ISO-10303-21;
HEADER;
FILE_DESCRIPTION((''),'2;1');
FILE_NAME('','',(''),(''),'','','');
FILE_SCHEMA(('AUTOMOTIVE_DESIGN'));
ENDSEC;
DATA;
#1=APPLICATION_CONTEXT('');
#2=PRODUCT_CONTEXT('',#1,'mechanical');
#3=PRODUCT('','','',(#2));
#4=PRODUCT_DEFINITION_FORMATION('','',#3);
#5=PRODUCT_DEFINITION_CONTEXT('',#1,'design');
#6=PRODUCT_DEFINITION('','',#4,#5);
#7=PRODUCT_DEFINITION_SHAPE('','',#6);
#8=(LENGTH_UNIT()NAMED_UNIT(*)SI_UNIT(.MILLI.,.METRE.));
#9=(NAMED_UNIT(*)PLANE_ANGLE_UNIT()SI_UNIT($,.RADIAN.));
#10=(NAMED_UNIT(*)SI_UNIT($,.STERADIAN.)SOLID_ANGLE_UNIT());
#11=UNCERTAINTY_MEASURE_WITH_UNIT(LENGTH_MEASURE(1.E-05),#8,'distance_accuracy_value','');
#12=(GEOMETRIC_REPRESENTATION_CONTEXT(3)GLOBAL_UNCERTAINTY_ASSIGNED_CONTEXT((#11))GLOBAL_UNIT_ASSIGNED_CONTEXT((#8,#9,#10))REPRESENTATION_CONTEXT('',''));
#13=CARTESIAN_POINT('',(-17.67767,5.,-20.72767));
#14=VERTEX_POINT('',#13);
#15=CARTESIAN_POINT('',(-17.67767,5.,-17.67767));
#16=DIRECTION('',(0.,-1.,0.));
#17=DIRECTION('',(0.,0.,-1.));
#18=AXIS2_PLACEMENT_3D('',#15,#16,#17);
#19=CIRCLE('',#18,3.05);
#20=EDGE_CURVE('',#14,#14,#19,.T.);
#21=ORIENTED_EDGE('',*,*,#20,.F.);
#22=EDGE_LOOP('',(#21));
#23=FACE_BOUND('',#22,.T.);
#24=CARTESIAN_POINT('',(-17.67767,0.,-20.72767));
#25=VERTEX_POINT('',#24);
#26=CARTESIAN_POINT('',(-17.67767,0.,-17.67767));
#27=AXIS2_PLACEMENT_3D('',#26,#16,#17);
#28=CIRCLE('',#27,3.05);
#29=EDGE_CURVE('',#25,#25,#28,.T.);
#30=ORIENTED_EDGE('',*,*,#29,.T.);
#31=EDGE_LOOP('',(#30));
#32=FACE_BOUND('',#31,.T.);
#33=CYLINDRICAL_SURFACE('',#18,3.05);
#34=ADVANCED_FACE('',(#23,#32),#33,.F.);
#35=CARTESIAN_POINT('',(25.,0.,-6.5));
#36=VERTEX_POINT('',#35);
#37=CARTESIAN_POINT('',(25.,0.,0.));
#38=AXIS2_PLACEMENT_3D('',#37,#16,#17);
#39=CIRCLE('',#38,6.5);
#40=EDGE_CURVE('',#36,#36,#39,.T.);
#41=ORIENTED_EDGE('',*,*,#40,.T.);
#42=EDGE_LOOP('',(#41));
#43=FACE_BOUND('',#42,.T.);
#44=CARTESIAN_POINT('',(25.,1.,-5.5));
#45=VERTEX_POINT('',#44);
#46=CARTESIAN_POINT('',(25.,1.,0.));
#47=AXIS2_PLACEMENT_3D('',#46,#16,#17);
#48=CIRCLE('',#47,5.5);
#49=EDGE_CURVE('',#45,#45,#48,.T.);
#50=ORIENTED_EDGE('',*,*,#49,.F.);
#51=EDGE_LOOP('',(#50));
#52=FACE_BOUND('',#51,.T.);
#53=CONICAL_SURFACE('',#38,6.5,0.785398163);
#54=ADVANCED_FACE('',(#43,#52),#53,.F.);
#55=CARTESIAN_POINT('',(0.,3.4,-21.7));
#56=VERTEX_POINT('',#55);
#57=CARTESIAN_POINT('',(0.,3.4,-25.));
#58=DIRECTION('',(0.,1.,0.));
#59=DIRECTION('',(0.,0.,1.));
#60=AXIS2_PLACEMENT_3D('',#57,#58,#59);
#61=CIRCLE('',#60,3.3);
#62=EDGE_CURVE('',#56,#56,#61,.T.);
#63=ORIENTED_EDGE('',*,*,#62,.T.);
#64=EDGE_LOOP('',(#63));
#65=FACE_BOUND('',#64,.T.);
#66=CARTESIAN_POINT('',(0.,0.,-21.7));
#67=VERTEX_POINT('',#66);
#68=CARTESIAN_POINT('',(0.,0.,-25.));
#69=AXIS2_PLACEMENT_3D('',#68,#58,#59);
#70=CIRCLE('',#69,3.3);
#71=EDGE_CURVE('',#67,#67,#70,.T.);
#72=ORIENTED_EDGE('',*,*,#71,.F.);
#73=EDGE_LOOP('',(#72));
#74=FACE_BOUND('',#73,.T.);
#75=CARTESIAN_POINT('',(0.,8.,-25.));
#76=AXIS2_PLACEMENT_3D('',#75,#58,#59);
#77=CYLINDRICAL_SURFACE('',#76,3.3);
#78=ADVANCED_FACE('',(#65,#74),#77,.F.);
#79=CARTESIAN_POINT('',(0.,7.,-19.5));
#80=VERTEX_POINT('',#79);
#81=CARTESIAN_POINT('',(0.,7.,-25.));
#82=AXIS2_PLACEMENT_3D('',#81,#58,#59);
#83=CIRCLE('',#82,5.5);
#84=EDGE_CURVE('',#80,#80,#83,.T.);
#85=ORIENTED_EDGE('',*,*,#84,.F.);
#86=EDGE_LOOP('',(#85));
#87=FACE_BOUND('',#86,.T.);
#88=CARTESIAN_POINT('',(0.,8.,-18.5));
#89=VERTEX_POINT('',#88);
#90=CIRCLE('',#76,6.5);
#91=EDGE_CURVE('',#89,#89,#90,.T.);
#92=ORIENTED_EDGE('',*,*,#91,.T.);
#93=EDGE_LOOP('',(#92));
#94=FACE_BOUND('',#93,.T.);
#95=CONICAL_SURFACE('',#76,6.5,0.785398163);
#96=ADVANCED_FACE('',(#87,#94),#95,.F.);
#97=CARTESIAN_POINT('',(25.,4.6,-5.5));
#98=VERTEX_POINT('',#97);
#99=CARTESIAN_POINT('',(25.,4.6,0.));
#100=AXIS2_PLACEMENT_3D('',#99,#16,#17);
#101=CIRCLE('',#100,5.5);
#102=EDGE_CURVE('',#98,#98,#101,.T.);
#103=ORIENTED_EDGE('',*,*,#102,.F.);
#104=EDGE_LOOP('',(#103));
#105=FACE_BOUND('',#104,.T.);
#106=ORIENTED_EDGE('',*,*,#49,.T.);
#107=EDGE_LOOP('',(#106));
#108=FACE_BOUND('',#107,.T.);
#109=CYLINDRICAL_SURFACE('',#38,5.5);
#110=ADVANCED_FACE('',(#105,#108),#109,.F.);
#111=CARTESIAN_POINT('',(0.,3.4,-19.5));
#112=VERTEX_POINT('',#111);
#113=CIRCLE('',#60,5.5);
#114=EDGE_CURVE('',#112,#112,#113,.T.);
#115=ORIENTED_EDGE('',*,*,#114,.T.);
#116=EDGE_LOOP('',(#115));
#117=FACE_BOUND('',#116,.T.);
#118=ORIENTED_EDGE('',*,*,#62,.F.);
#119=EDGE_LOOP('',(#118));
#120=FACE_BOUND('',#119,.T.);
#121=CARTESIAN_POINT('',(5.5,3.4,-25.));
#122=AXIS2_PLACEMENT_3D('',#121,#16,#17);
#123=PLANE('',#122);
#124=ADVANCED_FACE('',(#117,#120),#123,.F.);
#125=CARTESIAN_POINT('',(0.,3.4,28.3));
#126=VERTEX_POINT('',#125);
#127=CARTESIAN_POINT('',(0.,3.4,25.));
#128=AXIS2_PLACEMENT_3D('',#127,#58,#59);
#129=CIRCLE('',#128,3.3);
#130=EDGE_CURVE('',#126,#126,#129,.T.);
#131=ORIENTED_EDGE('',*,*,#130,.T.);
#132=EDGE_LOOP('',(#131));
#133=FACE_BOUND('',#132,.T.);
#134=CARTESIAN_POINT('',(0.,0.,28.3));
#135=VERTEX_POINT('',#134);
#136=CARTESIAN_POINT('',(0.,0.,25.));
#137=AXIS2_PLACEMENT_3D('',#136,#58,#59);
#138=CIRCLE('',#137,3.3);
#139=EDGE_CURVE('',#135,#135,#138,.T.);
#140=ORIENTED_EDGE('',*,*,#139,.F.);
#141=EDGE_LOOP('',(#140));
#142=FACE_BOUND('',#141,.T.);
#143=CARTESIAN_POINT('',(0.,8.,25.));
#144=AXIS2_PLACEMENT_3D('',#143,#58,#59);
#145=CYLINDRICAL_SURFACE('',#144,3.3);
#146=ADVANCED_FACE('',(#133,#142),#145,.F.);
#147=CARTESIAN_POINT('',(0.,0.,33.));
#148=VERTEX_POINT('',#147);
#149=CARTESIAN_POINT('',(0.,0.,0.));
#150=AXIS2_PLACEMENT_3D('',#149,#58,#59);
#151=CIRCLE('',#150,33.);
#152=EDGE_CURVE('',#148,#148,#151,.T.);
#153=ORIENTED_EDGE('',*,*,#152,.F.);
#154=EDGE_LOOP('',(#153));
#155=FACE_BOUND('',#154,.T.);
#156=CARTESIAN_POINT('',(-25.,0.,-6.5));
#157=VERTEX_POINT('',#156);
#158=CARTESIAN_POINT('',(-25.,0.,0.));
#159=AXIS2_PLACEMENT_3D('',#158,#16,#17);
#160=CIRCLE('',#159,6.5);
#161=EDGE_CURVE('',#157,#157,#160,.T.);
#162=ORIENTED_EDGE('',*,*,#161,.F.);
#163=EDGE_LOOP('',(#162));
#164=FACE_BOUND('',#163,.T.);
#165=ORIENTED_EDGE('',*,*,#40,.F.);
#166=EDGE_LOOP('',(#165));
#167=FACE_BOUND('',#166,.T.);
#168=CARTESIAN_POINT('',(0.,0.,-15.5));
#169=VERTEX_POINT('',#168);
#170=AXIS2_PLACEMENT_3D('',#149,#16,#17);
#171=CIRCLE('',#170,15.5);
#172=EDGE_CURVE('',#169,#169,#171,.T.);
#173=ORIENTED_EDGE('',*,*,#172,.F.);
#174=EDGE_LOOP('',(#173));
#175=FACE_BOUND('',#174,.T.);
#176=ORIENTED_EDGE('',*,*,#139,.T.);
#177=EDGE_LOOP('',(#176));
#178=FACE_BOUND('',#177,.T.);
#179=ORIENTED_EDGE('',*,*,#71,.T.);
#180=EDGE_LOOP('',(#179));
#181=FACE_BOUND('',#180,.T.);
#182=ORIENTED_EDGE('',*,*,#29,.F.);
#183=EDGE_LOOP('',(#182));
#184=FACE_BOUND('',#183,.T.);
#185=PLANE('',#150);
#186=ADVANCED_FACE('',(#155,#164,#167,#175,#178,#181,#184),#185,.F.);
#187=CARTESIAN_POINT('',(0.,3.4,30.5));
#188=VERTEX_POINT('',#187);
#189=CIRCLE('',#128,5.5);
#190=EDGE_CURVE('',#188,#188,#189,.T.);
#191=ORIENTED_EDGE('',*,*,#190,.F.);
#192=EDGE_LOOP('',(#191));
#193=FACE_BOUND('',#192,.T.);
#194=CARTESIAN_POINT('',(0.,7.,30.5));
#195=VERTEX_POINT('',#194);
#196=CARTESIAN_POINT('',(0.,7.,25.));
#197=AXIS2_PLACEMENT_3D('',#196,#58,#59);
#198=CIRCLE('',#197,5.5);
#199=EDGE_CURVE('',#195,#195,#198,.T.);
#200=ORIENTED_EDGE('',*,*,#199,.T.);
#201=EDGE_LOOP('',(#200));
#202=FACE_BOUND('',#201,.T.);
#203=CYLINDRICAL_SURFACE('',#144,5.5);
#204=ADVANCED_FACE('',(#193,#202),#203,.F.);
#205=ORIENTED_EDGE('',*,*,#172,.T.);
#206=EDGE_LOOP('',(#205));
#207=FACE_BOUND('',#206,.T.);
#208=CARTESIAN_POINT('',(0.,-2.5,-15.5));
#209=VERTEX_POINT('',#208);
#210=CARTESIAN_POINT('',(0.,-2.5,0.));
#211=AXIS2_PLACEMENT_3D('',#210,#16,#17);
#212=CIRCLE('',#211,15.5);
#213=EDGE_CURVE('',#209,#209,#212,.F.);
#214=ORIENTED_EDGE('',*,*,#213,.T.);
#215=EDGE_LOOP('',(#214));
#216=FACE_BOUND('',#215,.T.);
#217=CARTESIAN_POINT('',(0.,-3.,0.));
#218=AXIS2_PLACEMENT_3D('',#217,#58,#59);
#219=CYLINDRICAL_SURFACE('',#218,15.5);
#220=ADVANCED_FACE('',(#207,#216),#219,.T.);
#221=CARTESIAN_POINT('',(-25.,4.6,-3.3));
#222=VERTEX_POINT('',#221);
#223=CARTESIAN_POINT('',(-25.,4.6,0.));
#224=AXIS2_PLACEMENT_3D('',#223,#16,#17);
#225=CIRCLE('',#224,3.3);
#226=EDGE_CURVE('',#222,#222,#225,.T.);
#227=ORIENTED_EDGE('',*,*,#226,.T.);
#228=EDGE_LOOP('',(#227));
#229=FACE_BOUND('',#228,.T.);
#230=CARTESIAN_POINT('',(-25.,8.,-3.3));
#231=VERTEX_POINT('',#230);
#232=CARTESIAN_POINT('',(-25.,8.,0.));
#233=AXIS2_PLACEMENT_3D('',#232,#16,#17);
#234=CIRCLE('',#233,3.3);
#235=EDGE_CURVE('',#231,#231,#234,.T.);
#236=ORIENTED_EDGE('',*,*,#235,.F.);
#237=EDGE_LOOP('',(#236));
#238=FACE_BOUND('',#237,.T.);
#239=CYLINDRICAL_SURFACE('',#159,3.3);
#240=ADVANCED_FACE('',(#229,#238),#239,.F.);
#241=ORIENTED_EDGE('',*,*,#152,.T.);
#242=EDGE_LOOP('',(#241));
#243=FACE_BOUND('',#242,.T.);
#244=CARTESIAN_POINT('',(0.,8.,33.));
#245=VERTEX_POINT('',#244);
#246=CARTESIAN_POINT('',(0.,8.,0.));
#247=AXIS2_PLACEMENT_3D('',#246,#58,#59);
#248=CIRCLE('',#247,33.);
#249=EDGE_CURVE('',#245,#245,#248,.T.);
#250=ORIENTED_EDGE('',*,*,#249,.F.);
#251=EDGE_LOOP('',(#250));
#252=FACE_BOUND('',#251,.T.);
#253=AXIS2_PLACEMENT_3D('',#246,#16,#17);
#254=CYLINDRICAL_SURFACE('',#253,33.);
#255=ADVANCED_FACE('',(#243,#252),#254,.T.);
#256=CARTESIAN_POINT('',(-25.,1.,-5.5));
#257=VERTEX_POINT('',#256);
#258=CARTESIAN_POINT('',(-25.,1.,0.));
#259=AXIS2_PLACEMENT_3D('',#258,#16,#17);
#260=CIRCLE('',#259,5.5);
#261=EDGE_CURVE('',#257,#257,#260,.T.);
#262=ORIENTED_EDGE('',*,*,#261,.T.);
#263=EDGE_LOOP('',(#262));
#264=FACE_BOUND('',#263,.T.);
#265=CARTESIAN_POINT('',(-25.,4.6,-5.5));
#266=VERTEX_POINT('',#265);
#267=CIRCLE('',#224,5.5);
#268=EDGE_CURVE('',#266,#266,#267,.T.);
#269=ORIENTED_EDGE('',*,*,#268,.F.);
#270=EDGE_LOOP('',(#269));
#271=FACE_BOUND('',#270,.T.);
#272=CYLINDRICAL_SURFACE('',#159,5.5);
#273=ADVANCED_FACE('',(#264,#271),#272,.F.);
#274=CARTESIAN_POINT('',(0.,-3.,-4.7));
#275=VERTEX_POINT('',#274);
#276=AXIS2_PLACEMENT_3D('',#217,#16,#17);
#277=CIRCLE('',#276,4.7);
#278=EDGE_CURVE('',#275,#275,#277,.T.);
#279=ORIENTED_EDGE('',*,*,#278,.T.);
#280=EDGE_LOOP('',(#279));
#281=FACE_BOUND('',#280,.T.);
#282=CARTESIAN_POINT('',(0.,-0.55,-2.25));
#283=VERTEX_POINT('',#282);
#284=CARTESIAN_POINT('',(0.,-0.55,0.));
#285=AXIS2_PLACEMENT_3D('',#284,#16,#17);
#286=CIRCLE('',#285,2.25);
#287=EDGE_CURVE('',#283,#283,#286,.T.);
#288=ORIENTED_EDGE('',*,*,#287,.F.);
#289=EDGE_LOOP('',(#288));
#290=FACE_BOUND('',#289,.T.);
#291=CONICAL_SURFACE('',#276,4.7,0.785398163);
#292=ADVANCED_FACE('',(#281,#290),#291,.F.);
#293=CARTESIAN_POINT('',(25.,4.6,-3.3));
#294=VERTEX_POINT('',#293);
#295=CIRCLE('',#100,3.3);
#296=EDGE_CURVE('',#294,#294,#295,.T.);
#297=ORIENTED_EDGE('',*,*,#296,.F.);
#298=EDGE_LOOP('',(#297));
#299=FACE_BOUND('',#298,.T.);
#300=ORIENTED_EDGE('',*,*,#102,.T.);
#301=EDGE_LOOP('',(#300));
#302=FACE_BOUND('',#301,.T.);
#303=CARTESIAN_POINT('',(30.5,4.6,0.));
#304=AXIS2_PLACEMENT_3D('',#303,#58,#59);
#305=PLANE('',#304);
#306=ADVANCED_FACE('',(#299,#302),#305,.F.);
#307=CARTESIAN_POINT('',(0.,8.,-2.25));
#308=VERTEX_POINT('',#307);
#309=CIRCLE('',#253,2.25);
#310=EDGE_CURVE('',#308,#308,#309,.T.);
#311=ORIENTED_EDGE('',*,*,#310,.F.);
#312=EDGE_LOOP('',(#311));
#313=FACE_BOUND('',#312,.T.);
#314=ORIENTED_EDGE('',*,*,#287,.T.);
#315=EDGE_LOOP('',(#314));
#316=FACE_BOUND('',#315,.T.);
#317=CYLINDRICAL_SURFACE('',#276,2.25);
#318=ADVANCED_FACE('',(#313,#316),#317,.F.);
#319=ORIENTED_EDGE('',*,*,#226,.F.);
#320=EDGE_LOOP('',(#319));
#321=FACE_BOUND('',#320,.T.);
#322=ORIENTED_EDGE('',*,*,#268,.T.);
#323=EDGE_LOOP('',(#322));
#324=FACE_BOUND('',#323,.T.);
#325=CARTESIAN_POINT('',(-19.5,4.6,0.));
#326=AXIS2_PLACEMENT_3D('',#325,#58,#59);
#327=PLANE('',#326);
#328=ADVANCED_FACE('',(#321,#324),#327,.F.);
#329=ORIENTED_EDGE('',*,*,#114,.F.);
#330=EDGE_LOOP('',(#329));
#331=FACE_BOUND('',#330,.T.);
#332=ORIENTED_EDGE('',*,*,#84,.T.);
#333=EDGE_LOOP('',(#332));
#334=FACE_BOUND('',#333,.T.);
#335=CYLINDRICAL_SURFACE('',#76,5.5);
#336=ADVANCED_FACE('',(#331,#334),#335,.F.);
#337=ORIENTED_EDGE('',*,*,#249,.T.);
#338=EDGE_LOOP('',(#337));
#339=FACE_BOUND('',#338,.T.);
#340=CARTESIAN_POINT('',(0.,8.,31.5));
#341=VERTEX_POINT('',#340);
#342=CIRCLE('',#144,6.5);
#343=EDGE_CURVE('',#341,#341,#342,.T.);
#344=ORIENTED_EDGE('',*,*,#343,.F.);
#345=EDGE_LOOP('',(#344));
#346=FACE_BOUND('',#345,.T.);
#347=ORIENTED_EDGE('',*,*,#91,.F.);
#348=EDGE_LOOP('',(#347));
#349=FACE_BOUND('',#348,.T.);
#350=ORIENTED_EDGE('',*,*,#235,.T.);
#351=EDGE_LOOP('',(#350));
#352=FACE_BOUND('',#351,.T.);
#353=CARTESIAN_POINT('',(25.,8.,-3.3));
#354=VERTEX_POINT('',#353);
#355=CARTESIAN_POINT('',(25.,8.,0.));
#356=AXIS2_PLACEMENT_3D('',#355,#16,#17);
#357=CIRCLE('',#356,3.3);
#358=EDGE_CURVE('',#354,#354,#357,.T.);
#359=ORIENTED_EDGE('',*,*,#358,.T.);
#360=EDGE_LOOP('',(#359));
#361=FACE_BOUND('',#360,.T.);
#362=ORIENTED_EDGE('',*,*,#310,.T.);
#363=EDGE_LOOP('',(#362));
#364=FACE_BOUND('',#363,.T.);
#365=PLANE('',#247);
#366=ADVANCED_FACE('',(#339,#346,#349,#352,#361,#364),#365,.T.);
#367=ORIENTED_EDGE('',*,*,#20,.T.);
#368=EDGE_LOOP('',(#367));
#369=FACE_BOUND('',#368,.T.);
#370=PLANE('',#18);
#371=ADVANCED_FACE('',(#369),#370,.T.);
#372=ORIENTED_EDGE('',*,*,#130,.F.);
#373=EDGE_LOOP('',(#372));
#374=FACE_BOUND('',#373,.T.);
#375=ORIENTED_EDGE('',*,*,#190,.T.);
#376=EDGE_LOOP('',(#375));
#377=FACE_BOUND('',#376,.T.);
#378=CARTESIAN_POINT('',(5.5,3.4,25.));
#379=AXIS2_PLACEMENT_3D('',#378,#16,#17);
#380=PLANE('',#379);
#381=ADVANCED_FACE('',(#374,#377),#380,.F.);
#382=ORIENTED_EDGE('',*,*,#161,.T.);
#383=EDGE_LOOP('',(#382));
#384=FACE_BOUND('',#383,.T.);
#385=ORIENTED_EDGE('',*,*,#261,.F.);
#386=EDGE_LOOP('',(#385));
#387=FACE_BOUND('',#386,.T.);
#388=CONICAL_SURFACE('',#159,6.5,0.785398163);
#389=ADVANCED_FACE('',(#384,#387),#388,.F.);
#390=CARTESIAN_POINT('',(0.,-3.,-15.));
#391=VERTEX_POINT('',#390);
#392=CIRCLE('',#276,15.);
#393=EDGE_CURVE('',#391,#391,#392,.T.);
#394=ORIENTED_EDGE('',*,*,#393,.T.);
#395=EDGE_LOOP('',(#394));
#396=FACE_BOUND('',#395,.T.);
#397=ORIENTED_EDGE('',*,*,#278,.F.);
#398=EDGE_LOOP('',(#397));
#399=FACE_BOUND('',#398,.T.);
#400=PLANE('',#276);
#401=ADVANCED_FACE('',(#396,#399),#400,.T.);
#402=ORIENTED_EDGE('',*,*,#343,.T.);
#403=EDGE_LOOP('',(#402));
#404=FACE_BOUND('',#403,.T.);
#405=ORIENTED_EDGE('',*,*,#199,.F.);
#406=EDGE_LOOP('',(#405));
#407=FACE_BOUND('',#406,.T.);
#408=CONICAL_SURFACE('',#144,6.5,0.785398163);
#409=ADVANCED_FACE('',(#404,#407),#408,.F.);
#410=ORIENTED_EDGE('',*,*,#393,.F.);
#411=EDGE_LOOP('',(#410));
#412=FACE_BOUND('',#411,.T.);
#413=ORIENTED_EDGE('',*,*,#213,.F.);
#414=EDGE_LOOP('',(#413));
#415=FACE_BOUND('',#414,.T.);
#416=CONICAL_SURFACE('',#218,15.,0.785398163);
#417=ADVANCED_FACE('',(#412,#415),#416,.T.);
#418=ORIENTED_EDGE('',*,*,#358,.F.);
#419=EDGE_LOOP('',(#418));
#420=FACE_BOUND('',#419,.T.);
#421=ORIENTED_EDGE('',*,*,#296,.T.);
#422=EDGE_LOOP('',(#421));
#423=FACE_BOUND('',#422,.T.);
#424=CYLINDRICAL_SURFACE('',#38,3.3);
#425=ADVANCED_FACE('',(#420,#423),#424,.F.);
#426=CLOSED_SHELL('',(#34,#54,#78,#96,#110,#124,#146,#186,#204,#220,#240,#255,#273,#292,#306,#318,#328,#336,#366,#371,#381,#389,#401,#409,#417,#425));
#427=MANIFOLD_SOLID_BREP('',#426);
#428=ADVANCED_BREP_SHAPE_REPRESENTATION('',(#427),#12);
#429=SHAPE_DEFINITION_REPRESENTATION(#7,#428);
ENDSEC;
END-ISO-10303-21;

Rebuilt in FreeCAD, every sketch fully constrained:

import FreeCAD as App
import Part
import Sketcher
Q = App.Units.Quantity


def edges_at(feature, points):
    """Names of the edges that pass closest to the given points."""
    edges = feature.Shape.Edges
    near = lambda p: min(range(len(edges)), key=lambda i: edges[i].distToShape(Part.Vertex(*p))[0])
    return sorted({f"Edge{near(p) + 1}" for p in points})


def add_polygon(sketch, points):
    """Adds a closed chain of lines whose ends are joined by coincident constraints."""
    first, n = sketch.GeometryCount, len(points)
    for a, b in zip(points, points[1:] + points[:1]):
        sketch.addGeometry(Part.LineSegment(App.Vector(*a, 0), App.Vector(*b, 0)), False)
    for i in range(n):
        sketch.addConstraint(Sketcher.Constraint("Coincident", first + i, 2, first + (i + 1) % n, 1))

doc = App.newDocument("Part")
body = doc.addObject("PartDesign::Body", "Body")

# Sketch on XZ plane
sketch1 = doc.addObject("Sketcher::SketchObject", "Sketch")
body.addObject(sketch1)
sketch1.AttachmentSupport = (doc.XZ_Plane, [""])
sketch1.MapMode = "FlatFace"
sketch1.addGeometry(Part.Circle(App.Vector(0, 0, 0), App.Vector(0, 0, 1), 33), False)
sketch1.addConstraint(Sketcher.Constraint("Coincident", 0, 3, -1, 1))
sketch1.addConstraint(Sketcher.Constraint("Diameter", 0, 66.0))
pad1 = doc.addObject("PartDesign::Pad", "Pad")
body.addObject(pad1)
pad1.Profile = sketch1
pad1.Length = 8
pad1.Reversed = True

# Sketch on XZ plane
sketch2 = doc.addObject("Sketcher::SketchObject", "Sketch001")
body.addObject(sketch2)
sketch2.AttachmentSupport = (doc.XZ_Plane, [""])
sketch2.MapMode = "FlatFace"
sketch2.addGeometry(Part.Circle(App.Vector(0, 0, 0), App.Vector(0, 0, 1), 16), False)
sketch2.addConstraint(Sketcher.Constraint("Coincident", 0, 3, -1, 1))
sketch2.addConstraint(Sketcher.Constraint("Diameter", 0, 31.0))
pad2 = doc.addObject("PartDesign::Pad", "Pad001")
body.addObject(pad2)
pad2.Profile = sketch2
pad2.Length = 3

# Sketch on XZ plane
sketch3 = doc.addObject("Sketcher::SketchObject", "Sketch002")
body.addObject(sketch3)
sketch3.AttachmentSupport = (doc.XZ_Plane, [""])
sketch3.MapMode = "FlatFace"
sketch3.addGeometry(Part.Circle(App.Vector(-17.7, -17.7, 0), App.Vector(0, 0, 1), 3), False)
sketch3.addConstraint(Sketcher.Constraint("Diameter", 0, 6.1))
sketch3.addConstraint(Sketcher.Constraint("DistanceX", 0, 3, -1, 1, 17.67767))
sketch3.addConstraint(Sketcher.Constraint("DistanceY", 0, 3, -1, 1, 17.67767))
pocket1 = doc.addObject("PartDesign::Pocket", "Pocket")
body.addObject(pocket1)
pocket1.Profile = sketch3
pocket1.Length = 5
doc.recompute()

chamfer = doc.addObject("PartDesign::Chamfer", "Chamfer")
body.addObject(chamfer)
chamfer.Base = (pocket1, edges_at(pocket1, [(0, -3, 15.5)]))
chamfer.Size = 0.5

# Sketch on YZ plane
sketch4 = doc.addObject("Sketcher::SketchObject", "Sketch003")
body.addObject(sketch4)
sketch4.AttachmentSupport = (doc.YZ_Plane, [""])
sketch4.MapMode = "FlatFace"
sketch4.AttachmentOffset = App.Placement(App.Vector(0, 0, -25), App.Rotation())
add_polygon(sketch4, [(8, 0), (0, 0), (0, -6.5), (1, -5.5), (4.6, -5.5), (4.6, -3.3), (8, -3.3)])  # lines 0-6
sketch4.addConstraint(Sketcher.Constraint("Horizontal", 0))
sketch4.addConstraint(Sketcher.Constraint("Vertical", 1))
sketch4.addConstraint(Sketcher.Constraint("Horizontal", 3))
sketch4.addConstraint(Sketcher.Constraint("Vertical", 4))
sketch4.addConstraint(Sketcher.Constraint("Horizontal", 5))
sketch4.addConstraint(Sketcher.Constraint("Vertical", 6))
sketch4.addConstraint(Sketcher.Constraint("Coincident", 0, 2, -1, 1))
sketch4.addConstraint(Sketcher.Constraint("DistanceX", 0, 2, 0, 1, 8.0))
sketch4.addConstraint(Sketcher.Constraint("Angle", 2, Q("45 deg")))
sketch4.addConstraint(Sketcher.Constraint("DistanceX", 3, 1, 3, 2, 3.6))
sketch4.addConstraint(Sketcher.Constraint("DistanceX", 5, 1, 5, 2, 3.4))
sketch4.addConstraint(Sketcher.Constraint("DistanceY", 1, 2, 1, 1, 6.5))
sketch4.addConstraint(Sketcher.Constraint("DistanceY", 4, 1, 4, 2, 2.2))
groove = doc.addObject("PartDesign::Groove", "Groove")
body.addObject(groove)
groove.Profile = sketch4
groove.ReferenceAxis = (sketch4, ["H_Axis"])
groove.Angle = 360
doc.recompute()

linearpattern = doc.addObject("PartDesign::LinearPattern", "LinearPattern")
body.addObject(linearpattern)
linearpattern.Originals = [groove]
linearpattern.Direction = (doc.X_Axis, [""])
linearpattern.Mode = "offset"
linearpattern.Offset = 50
linearpattern.Occurrences = 2
body.Tip = linearpattern

# Sketch on YZ plane
sketch5 = doc.addObject("Sketcher::SketchObject", "Sketch004")
body.addObject(sketch5)
sketch5.AttachmentSupport = (doc.YZ_Plane, [""])
sketch5.MapMode = "FlatFace"
add_polygon(sketch5, [(-3, -25), (8, -25), (8, -18.5), (7, -19.5), (3.4, -19.5), (3.4, -21.7), (-3, -21.7)])  # lines 0-6
sketch5.addGeometry(Part.LineSegment(App.Vector(8, -25, 0), App.Vector(-3, -25, 0)), True)  # axis
sketch5.addConstraint(Sketcher.Constraint("Horizontal", 0))
sketch5.addConstraint(Sketcher.Constraint("Vertical", 1))
sketch5.addConstraint(Sketcher.Constraint("Horizontal", 3))
sketch5.addConstraint(Sketcher.Constraint("Vertical", 4))
sketch5.addConstraint(Sketcher.Constraint("Horizontal", 5))
sketch5.addConstraint(Sketcher.Constraint("Vertical", 6))
sketch5.addConstraint(Sketcher.Constraint("Horizontal", 7))
sketch5.addConstraint(Sketcher.Constraint("Coincident", 7, 1, 0, 2))
sketch5.addConstraint(Sketcher.Constraint("Vertical", 5, 2, 7, 2))
sketch5.addConstraint(Sketcher.Constraint("DistanceX", 0, 1, 0, 2, 11.0))
sketch5.addConstraint(Sketcher.Constraint("Angle", 2, Q("-135 deg")))
sketch5.addConstraint(Sketcher.Constraint("DistanceX", 3, 2, 3, 1, 3.6))
sketch5.addConstraint(Sketcher.Constraint("DistanceX", 5, 2, 5, 1, 6.4))
sketch5.addConstraint(Sketcher.Constraint("DistanceY", 1, 1, 1, 2, 6.5))
sketch5.addConstraint(Sketcher.Constraint("DistanceY", 4, 2, 4, 1, 2.2))
sketch5.addConstraint(Sketcher.Constraint("DistanceX", -1, 1, 0, 2, 8.0))
sketch5.addConstraint(Sketcher.Constraint("DistanceY", 0, 2, -1, 1, 25.0))
groove2 = doc.addObject("PartDesign::Groove", "Groove001")
body.addObject(groove2)
groove2.Profile = sketch5
groove2.ReferenceAxis = (sketch5, ["Axis0"])
groove2.Angle = 360
doc.recompute()

linearpattern2 = doc.addObject("PartDesign::LinearPattern", "LinearPattern001")
body.addObject(linearpattern2)
linearpattern2.Originals = [groove2]
linearpattern2.Direction = (doc.Z_Axis, [""])
linearpattern2.Mode = "offset"
linearpattern2.Offset = 50
linearpattern2.Occurrences = 2
body.Tip = linearpattern2

# Sketch on XZ plane
sketch6 = doc.addObject("Sketcher::SketchObject", "Sketch005")
body.addObject(sketch6)
sketch6.AttachmentSupport = (doc.XZ_Plane, [""])
sketch6.MapMode = "FlatFace"
sketch6.AttachmentOffset = App.Placement(App.Vector(0, 0, 3), App.Rotation())
sketch6.addGeometry(Part.Circle(App.Vector(0, 0, 0), App.Vector(0, 0, 1), 2.2), False)
sketch6.addConstraint(Sketcher.Constraint("Coincident", 0, 3, -1, 1))
sketch6.addConstraint(Sketcher.Constraint("Diameter", 0, 4.5))
doc.recompute()
hole = doc.addObject("PartDesign::Hole", "Hole")
body.addObject(hole)
hole.Profile = sketch6
hole.ThreadType = "None"
hole.Diameter = 4.5
hole.DepthType = "ThroughAll"
hole.HoleCutType = "Countersink"
hole.HoleCutDiameter = 9.4
hole.HoleCutCountersinkAngle = 90

doc.recompute()
